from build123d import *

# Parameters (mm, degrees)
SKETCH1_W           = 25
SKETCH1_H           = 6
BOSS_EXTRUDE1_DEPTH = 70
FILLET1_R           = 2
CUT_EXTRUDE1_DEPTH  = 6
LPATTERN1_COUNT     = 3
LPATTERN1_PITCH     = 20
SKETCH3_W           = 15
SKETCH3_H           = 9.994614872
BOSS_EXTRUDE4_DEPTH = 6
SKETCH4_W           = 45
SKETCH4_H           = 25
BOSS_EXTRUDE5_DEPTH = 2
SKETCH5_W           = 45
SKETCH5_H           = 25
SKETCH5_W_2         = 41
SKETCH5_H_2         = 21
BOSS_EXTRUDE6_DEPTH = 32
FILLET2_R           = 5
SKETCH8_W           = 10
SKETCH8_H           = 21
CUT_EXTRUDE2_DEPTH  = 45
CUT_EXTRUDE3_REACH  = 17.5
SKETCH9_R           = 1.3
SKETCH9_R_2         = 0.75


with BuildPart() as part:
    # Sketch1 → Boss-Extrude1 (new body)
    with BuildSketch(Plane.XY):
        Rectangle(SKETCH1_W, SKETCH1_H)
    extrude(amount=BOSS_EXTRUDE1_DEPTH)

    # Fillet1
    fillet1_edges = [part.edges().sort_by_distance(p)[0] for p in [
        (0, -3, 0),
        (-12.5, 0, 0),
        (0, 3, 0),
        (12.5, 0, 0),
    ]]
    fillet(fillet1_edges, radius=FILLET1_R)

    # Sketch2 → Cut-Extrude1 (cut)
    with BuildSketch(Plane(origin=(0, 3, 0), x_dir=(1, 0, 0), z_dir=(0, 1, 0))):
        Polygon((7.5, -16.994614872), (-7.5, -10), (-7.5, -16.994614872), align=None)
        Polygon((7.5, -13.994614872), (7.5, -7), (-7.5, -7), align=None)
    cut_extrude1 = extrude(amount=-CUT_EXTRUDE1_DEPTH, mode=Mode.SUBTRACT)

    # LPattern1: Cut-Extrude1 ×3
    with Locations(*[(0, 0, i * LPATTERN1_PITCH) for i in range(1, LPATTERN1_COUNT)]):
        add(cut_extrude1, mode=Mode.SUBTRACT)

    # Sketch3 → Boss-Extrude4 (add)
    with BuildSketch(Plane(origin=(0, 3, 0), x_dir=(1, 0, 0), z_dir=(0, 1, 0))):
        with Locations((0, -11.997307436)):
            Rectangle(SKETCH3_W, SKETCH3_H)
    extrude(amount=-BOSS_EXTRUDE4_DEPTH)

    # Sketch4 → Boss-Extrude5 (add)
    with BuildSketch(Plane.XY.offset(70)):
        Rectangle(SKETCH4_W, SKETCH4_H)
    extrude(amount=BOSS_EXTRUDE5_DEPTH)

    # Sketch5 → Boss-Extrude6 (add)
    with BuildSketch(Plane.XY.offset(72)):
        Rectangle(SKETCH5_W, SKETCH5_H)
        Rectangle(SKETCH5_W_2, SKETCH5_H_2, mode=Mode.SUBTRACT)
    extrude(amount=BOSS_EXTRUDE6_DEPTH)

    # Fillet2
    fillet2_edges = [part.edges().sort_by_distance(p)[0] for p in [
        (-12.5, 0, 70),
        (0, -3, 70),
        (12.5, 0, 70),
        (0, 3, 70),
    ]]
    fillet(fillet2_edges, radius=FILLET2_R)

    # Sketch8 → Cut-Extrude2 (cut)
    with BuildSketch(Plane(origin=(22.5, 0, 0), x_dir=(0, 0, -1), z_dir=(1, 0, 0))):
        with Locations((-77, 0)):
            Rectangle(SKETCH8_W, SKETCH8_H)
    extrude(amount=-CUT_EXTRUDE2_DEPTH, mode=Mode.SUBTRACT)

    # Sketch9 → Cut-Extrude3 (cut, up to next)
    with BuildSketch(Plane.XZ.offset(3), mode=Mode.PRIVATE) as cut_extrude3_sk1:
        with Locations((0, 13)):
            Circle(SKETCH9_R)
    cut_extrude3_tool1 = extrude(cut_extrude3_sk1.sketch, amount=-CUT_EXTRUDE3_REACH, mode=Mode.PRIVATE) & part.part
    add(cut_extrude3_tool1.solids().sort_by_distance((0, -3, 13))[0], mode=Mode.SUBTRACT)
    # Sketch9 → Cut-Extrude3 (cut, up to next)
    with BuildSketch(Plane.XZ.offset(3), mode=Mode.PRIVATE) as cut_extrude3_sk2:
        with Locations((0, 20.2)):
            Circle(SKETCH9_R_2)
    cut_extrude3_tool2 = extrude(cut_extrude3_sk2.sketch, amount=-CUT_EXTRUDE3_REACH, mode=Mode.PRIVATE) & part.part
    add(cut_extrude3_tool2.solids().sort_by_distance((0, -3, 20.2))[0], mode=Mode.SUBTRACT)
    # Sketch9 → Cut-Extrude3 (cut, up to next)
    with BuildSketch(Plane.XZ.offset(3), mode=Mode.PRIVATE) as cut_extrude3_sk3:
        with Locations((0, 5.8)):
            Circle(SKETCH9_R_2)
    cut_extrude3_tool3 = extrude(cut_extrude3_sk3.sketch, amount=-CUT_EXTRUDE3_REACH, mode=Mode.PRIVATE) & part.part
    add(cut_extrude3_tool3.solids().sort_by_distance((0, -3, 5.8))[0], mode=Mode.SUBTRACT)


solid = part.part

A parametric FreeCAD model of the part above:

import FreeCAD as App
import Part
import Sketcher
from FreeCAD import Vector
Q = App.Units.Quantity


def edges_at(feature, points):
    """Names of the edges that pass closest to the given points."""
    edges = feature.Shape.Edges
    near = lambda p: min(range(len(edges)), key=lambda i: edges[i].distToShape(Part.Vertex(*p))[0])
    return sorted({f"Edge{near(p) + 1}" for p in points})

doc = App.newDocument("Part")
body = doc.addObject("PartDesign::Body", "Body")

sketch1 = doc.addObject("Sketcher::SketchObject", "Sketch")
body.addObject(sketch1)
sketch1.AttachmentSupport = (doc.XY_Plane, [""])
sketch1.MapMode = "FlatFace"
sketch1.addGeometry([
    Part.LineSegment(Vector(-12.5, 3, 0), Vector(-12.5, -3, 0)),
    Part.LineSegment(Vector(-12.5, -3, 0), Vector(12.5, -3, 0)),
    Part.LineSegment(Vector(12.5, -3, 0), Vector(12.5, 3, 0)),
    Part.LineSegment(Vector(12.5, 3, 0), Vector(-12.5, 3, 0)),
], False)
sketch1.addConstraint([
    Sketcher.Constraint("Coincident", 0, 2, 1, 1),
    Sketcher.Constraint("Coincident", 1, 2, 2, 1),
    Sketcher.Constraint("Coincident", 2, 2, 3, 1),
    Sketcher.Constraint("Coincident", 3, 2, 0, 1),
    Sketcher.Constraint("Vertical", 0),
    Sketcher.Constraint("Horizontal", 1),
    Sketcher.Constraint("Vertical", 2),
    Sketcher.Constraint("Horizontal", 3),
    Sketcher.Constraint("Symmetric", 0, 2, 2, 2, -1, 1),
    Sketcher.Constraint("DistanceX", 1, 1, 1, 2, 25.0),
    Sketcher.Constraint("DistanceY", 0, 2, 0, 1, 6.0),
])
pad1 = doc.addObject("PartDesign::Pad", "Pad")
body.addObject(pad1)
pad1.Profile = sketch1
pad1.Length = 70
doc.recompute()

fillet = doc.addObject("PartDesign::Fillet", "Fillet")
body.addObject(fillet)
fillet.Base = (pad1, edges_at(pad1, [
    (0, -3, 0),
    (-12.5, 0, 0),
    (0, 3, 0),
    (12.5, 0, 0),
]))
fillet.Radius = 2

sketch2 = doc.addObject("Sketcher::SketchObject", "Sketch001")
body.addObject(sketch2)
sketch2.AttachmentSupport = (doc.XZ_Plane, [""])
sketch2.MapMode = "FlatFace"
sketch2.AttachmentOffset = App.Placement(Vector(0, 0, -3), App.Rotation())
sketch2.addGeometry([
    Part.LineSegment(Vector(7.5, 16.994615, 0), Vector(-7.5, 10, 0)),
    Part.LineSegment(Vector(-7.5, 10, 0), Vector(-7.5, 16.994615, 0)),
    Part.LineSegment(Vector(-7.5, 16.994615, 0), Vector(7.5, 16.994615, 0)),
    Part.LineSegment(Vector(7.5, 13.994615, 0), Vector(7.5, 7, 0)),
    Part.LineSegment(Vector(7.5, 7, 0), Vector(-7.5, 7, 0)),
    Part.LineSegment(Vector(-7.5, 7, 0), Vector(7.5, 13.994615, 0)),
], False)
sketch2.addConstraint([
    Sketcher.Constraint("Coincident", 0, 2, 1, 1),
    Sketcher.Constraint("Coincident", 1, 2, 2, 1),
    Sketcher.Constraint("Coincident", 2, 2, 0, 1),
    Sketcher.Constraint("Coincident", 3, 2, 4, 1),
    Sketcher.Constraint("Coincident", 4, 2, 5, 1),
    Sketcher.Constraint("Coincident", 5, 2, 3, 1),
    Sketcher.Constraint("Vertical", 1),
    Sketcher.Constraint("Horizontal", 2),
    Sketcher.Constraint("Vertical", 3),
    Sketcher.Constraint("Horizontal", 4),
    Sketcher.Constraint("Parallel", 0, 5),
    Sketcher.Constraint("Vertical", 2, 2, 3, 2),
    Sketcher.Constraint("Vertical", 1, 2, 4, 2),
    Sketcher.Constraint("DistanceX", 2, 1, 2, 2, 15.0),
    Sketcher.Constraint("Angle", 0, Q("-155 deg")),
    Sketcher.Constraint("DistanceY", -1, 1, 0, 2, 10.0),
    Sketcher.Constraint("DistanceY", -1, 1, 3, 2, 7.0),
    Sketcher.Constraint("DistanceX", 0, 2, -1, 1, 7.5),
])
pocket1 = doc.addObject("PartDesign::Pocket", "Pocket")
body.addObject(pocket1)
pocket1.Profile = sketch2
pocket1.Length = 6
pocket1.Reversed = True
doc.recompute()

linearpattern = doc.addObject("PartDesign::LinearPattern", "LinearPattern")
body.addObject(linearpattern)
linearpattern.Originals = [pocket1]
linearpattern.Direction = (doc.Z_Axis, [""])
linearpattern.Mode = "offset"
linearpattern.Offset = 20
linearpattern.Occurrences = 3
body.Tip = linearpattern

sketch3 = doc.addObject("Sketcher::SketchObject", "Sketch002")
body.addObject(sketch3)
sketch3.AttachmentSupport = (doc.XZ_Plane, [""])
sketch3.MapMode = "FlatFace"
sketch3.AttachmentOffset = App.Placement(Vector(0, 0, -3), App.Rotation())
sketch3.addGeometry([
    Part.LineSegment(Vector(-7.5, 7, 0), Vector(-7.5, 16.994615, 0)),
    Part.LineSegment(Vector(-7.5, 16.994615, 0), Vector(7.5, 16.994615, 0)),
    Part.LineSegment(Vector(7.5, 16.994615, 0), Vector(7.5, 7, 0)),
    Part.LineSegment(Vector(7.5, 7, 0), Vector(-7.5, 7, 0)),
], False)
sketch3.addConstraint([
    Sketcher.Constraint("Coincident", 0, 2, 1, 1),
    Sketcher.Constraint("Coincident", 1, 2, 2, 1),
    Sketcher.Constraint("Coincident", 2, 2, 3, 1),
    Sketcher.Constraint("Coincident", 3, 2, 0, 1),
    Sketcher.Constraint("Vertical", 0),
    Sketcher.Constraint("Horizontal", 1),
    Sketcher.Constraint("Vertical", 2),
    Sketcher.Constraint("Horizontal", 3),
    Sketcher.Constraint("DistanceX", 1, 1, 1, 2, 15.0),
    Sketcher.Constraint("DistanceY", -1, 1, 2, 2, 7.0),
    Sketcher.Constraint("DistanceX", 0, 2, -1, 1, 7.5),
    Sketcher.Constraint("DistanceY", 0, 1, 0, 2, 9.994615),
])
pad2 = doc.addObject("PartDesign::Pad", "Pad001")
body.addObject(pad2)
pad2.Profile = sketch3
pad2.Length = 6

sketch4 = doc.addObject("Sketcher::SketchObject", "Sketch003")
body.addObject(sketch4)
sketch4.AttachmentSupport = (doc.XY_Plane, [""])
sketch4.MapMode = "FlatFace"
sketch4.AttachmentOffset = App.Placement(Vector(0, 0, 70), App.Rotation())
sketch4.addGeometry([
    Part.LineSegment(Vector(-22.5, 12.5, 0), Vector(-22.5, -12.5, 0)),
    Part.LineSegment(Vector(-22.5, -12.5, 0), Vector(22.5, -12.5, 0)),
    Part.LineSegment(Vector(22.5, -12.5, 0), Vector(22.5, 12.5, 0)),
    Part.LineSegment(Vector(22.5, 12.5, 0), Vector(-22.5, 12.5, 0)),
], False)
sketch4.addConstraint([
    Sketcher.Constraint("Coincident", 0, 2, 1, 1),
    Sketcher.Constraint("Coincident", 1, 2, 2, 1),
    Sketcher.Constraint("Coincident", 2, 2, 3, 1),
    Sketcher.Constraint("Coincident", 3, 2, 0, 1),
    Sketcher.Constraint("Vertical", 0),
    Sketcher.Constraint("Horizontal", 1),
    Sketcher.Constraint("Vertical", 2),
    Sketcher.Constraint("Horizontal", 3),
    Sketcher.Constraint("Symmetric", 0, 2, 2, 2, -1, 1),
    Sketcher.Constraint("DistanceX", 1, 1, 1, 2, 45.0),
    Sketcher.Constraint("DistanceY", 0, 2, 0, 1, 25.0),
])
pad3 = doc.addObject("PartDesign::Pad", "Pad002")
body.addObject(pad3)
pad3.Profile = sketch4
pad3.Length = 2

sketch5 = doc.addObject("Sketcher::SketchObject", "Sketch004")
body.addObject(sketch5)
sketch5.AttachmentSupport = (doc.XY_Plane, [""])
sketch5.MapMode = "FlatFace"
sketch5.AttachmentOffset = App.Placement(Vector(0, 0, 72), App.Rotation())
sketch5.addGeometry([
    Part.LineSegment(Vector(-22.5, 12.5, 0), Vector(-22.5, -12.5, 0)),
    Part.LineSegment(Vector(-22.5, -12.5, 0), Vector(22.5, -12.5, 0)),
    Part.LineSegment(Vector(22.5, -12.5, 0), Vector(22.5, 12.5, 0)),
    Part.LineSegment(Vector(22.5, 12.5, 0), Vector(-22.5, 12.5, 0)),
    Part.LineSegment(Vector(20.5, -10.5, 0), Vector(-20.5, -10.5, 0)),
    Part.LineSegment(Vector(-20.5, -10.5, 0), Vector(-20.5, 10.5, 0)),
    Part.LineSegment(Vector(-20.5, 10.5, 0), Vector(20.5, 10.5, 0)),
    Part.LineSegment(Vector(20.5, 10.5, 0), Vector(20.5, -10.5, 0)),
], False)
sketch5.addConstraint([
    Sketcher.Constraint("Coincident", 0, 2, 1, 1),
    Sketcher.Constraint("Coincident", 1, 2, 2, 1),
    Sketcher.Constraint("Coincident", 2, 2, 3, 1),
    Sketcher.Constraint("Coincident", 3, 2, 0, 1),
    Sketcher.Constraint("Coincident", 4, 2, 5, 1),
    Sketcher.Constraint("Coincident", 5, 2, 6, 1),
    Sketcher.Constraint("Coincident", 6, 2, 7, 1),
    Sketcher.Constraint("Coincident", 7, 2, 4, 1),
    Sketcher.Constraint("Vertical", 0),
    Sketcher.Constraint("Horizontal", 1),
    Sketcher.Constraint("Vertical", 2),
    Sketcher.Constraint("Horizontal", 3),
    Sketcher.Constraint("Horizontal", 4),
    Sketcher.Constraint("Vertical", 5),
    Sketcher.Constraint("Horizontal", 6),
    Sketcher.Constraint("Vertical", 7),
    Sketcher.Constraint("Symmetric", 0, 2, 2, 2, -1, 1),
    Sketcher.Constraint("Symmetric", 4, 2, 6, 2, -1, 1),
    Sketcher.Constraint("DistanceX", 1, 1, 1, 2, 45.0),
    Sketcher.Constraint("DistanceX", 4, 2, 4, 1, 41.0),
    Sketcher.Constraint("DistanceY", 0, 2, 0, 1, 25.0),
    Sketcher.Constraint("DistanceY", 5, 1, 5, 2, 21.0),
])
pad4 = doc.addObject("PartDesign::Pad", "Pad003")
body.addObject(pad4)
pad4.Profile = sketch5
pad4.Length = 32
doc.recompute()

fillet2 = doc.addObject("PartDesign::Fillet", "Fillet001")
body.addObject(fillet2)
fillet2.Base = (pad4, edges_at(pad4, [
    (-12.5, 0, 70),
    (0, -3, 70),
    (12.5, 0, 70),
    (0, 3, 70),
]))
fillet2.Radius = 5

sketch6 = doc.addObject("Sketcher::SketchObject", "Sketch005")
body.addObject(sketch6)
sketch6.AttachmentSupport = (doc.YZ_Plane, [""])
sketch6.MapMode = "FlatFace"
sketch6.AttachmentOffset = App.Placement(Vector(0, 0, 22.5), App.Rotation())
sketch6.addGeometry([
    Part.LineSegment(Vector(10.5, 82, 0), Vector(-10.5, 82, 0)),
    Part.LineSegment(Vector(-10.5, 82, 0), Vector(-10.5, 72, 0)),
    Part.LineSegment(Vector(-10.5, 72, 0), Vector(10.5, 72, 0)),
    Part.LineSegment(Vector(10.5, 72, 0), Vector(10.5, 82, 0)),
], False)
sketch6.addConstraint([
    Sketcher.Constraint("Coincident", 0, 2, 1, 1),
    Sketcher.Constraint("Coincident", 1, 2, 2, 1),
    Sketcher.Constraint("Coincident", 2, 2, 3, 1),
    Sketcher.Constraint("Coincident", 3, 2, 0, 1),
    Sketcher.Constraint("Horizontal", 0),
    Sketcher.Constraint("Vertical", 1),
    Sketcher.Constraint("Horizontal", 2),
    Sketcher.Constraint("Vertical", 3),
    Sketcher.Constraint("DistanceX", 0, 2, 0, 1, 21.0),
    Sketcher.Constraint("DistanceY", 1, 2, 1, 1, 10.0),
    Sketcher.Constraint("DistanceY", -1, 1, 0, 2, 82.0),
    Sketcher.Constraint("DistanceX", 0, 2, -1, 1, 10.5),
])
pocket2 = doc.addObject("PartDesign::Pocket", "Pocket001")
body.addObject(pocket2)
pocket2.Profile = sketch6
pocket2.Length = 45

sketch7 = doc.addObject("Sketcher::SketchObject", "Sketch006")
body.addObject(sketch7)
sketch7.AttachmentSupport = (doc.XZ_Plane, [""])
sketch7.MapMode = "FlatFace"
sketch7.AttachmentOffset = App.Placement(Vector(0, 0, 3), App.Rotation())
sketch7.addGeometry(Part.Circle(Vector(0, 13, 0), Vector(0, 0, 1), 1.3), False)
sketch7.addConstraint([
    Sketcher.Constraint("PointOnObject", 0, 3, -2),
    Sketcher.Constraint("Diameter", 0, 2.6),
    Sketcher.Constraint("DistanceY", -1, 1, 0, 3, 13.0),
])
pocket3 = doc.addObject("PartDesign::Pocket", "Pocket002")
body.addObject(pocket3)
pocket3.Profile = sketch7
pocket3.Type = "UpToFirst"

sketch8 = doc.addObject("Sketcher::SketchObject", "Sketch007")
body.addObject(sketch8)
sketch8.AttachmentSupport = (doc.XZ_Plane, [""])
sketch8.MapMode = "FlatFace"
sketch8.AttachmentOffset = App.Placement(Vector(0, 0, 3), App.Rotation())
sketch8.addGeometry(Part.Circle(Vector(0, 20.2, 0), Vector(0, 0, 1), 0.75), False)
sketch8.addConstraint([
    Sketcher.Constraint("PointOnObject", 0, 3, -2),
    Sketcher.Constraint("Diameter", 0, 1.5),
    Sketcher.Constraint("DistanceY", -1, 1, 0, 3, 20.2),
])
pocket4 = doc.addObject("PartDesign::Pocket", "Pocket003")
body.addObject(pocket4)
pocket4.Profile = sketch8
pocket4.Type = "UpToFirst"

sketch9 = doc.addObject("Sketcher::SketchObject", "Sketch008")
body.addObject(sketch9)
sketch9.AttachmentSupport = (doc.XZ_Plane, [""])
sketch9.MapMode = "FlatFace"
sketch9.AttachmentOffset = App.Placement(Vector(0, 0, 3), App.Rotation())
sketch9.addGeometry(Part.Circle(Vector(0, 5.8, 0), Vector(0, 0, 1), 0.75), False)
sketch9.addConstraint([
    Sketcher.Constraint("PointOnObject", 0, 3, -2),
    Sketcher.Constraint("Diameter", 0, 1.5),
    Sketcher.Constraint("DistanceY", -1, 1, 0, 3, 5.8),
])
pocket5 = doc.addObject("PartDesign::Pocket", "Pocket004")
body.addObject(pocket5)
pocket5.Profile = sketch9
pocket5.Type = "UpToFirst"

doc.recompute()
